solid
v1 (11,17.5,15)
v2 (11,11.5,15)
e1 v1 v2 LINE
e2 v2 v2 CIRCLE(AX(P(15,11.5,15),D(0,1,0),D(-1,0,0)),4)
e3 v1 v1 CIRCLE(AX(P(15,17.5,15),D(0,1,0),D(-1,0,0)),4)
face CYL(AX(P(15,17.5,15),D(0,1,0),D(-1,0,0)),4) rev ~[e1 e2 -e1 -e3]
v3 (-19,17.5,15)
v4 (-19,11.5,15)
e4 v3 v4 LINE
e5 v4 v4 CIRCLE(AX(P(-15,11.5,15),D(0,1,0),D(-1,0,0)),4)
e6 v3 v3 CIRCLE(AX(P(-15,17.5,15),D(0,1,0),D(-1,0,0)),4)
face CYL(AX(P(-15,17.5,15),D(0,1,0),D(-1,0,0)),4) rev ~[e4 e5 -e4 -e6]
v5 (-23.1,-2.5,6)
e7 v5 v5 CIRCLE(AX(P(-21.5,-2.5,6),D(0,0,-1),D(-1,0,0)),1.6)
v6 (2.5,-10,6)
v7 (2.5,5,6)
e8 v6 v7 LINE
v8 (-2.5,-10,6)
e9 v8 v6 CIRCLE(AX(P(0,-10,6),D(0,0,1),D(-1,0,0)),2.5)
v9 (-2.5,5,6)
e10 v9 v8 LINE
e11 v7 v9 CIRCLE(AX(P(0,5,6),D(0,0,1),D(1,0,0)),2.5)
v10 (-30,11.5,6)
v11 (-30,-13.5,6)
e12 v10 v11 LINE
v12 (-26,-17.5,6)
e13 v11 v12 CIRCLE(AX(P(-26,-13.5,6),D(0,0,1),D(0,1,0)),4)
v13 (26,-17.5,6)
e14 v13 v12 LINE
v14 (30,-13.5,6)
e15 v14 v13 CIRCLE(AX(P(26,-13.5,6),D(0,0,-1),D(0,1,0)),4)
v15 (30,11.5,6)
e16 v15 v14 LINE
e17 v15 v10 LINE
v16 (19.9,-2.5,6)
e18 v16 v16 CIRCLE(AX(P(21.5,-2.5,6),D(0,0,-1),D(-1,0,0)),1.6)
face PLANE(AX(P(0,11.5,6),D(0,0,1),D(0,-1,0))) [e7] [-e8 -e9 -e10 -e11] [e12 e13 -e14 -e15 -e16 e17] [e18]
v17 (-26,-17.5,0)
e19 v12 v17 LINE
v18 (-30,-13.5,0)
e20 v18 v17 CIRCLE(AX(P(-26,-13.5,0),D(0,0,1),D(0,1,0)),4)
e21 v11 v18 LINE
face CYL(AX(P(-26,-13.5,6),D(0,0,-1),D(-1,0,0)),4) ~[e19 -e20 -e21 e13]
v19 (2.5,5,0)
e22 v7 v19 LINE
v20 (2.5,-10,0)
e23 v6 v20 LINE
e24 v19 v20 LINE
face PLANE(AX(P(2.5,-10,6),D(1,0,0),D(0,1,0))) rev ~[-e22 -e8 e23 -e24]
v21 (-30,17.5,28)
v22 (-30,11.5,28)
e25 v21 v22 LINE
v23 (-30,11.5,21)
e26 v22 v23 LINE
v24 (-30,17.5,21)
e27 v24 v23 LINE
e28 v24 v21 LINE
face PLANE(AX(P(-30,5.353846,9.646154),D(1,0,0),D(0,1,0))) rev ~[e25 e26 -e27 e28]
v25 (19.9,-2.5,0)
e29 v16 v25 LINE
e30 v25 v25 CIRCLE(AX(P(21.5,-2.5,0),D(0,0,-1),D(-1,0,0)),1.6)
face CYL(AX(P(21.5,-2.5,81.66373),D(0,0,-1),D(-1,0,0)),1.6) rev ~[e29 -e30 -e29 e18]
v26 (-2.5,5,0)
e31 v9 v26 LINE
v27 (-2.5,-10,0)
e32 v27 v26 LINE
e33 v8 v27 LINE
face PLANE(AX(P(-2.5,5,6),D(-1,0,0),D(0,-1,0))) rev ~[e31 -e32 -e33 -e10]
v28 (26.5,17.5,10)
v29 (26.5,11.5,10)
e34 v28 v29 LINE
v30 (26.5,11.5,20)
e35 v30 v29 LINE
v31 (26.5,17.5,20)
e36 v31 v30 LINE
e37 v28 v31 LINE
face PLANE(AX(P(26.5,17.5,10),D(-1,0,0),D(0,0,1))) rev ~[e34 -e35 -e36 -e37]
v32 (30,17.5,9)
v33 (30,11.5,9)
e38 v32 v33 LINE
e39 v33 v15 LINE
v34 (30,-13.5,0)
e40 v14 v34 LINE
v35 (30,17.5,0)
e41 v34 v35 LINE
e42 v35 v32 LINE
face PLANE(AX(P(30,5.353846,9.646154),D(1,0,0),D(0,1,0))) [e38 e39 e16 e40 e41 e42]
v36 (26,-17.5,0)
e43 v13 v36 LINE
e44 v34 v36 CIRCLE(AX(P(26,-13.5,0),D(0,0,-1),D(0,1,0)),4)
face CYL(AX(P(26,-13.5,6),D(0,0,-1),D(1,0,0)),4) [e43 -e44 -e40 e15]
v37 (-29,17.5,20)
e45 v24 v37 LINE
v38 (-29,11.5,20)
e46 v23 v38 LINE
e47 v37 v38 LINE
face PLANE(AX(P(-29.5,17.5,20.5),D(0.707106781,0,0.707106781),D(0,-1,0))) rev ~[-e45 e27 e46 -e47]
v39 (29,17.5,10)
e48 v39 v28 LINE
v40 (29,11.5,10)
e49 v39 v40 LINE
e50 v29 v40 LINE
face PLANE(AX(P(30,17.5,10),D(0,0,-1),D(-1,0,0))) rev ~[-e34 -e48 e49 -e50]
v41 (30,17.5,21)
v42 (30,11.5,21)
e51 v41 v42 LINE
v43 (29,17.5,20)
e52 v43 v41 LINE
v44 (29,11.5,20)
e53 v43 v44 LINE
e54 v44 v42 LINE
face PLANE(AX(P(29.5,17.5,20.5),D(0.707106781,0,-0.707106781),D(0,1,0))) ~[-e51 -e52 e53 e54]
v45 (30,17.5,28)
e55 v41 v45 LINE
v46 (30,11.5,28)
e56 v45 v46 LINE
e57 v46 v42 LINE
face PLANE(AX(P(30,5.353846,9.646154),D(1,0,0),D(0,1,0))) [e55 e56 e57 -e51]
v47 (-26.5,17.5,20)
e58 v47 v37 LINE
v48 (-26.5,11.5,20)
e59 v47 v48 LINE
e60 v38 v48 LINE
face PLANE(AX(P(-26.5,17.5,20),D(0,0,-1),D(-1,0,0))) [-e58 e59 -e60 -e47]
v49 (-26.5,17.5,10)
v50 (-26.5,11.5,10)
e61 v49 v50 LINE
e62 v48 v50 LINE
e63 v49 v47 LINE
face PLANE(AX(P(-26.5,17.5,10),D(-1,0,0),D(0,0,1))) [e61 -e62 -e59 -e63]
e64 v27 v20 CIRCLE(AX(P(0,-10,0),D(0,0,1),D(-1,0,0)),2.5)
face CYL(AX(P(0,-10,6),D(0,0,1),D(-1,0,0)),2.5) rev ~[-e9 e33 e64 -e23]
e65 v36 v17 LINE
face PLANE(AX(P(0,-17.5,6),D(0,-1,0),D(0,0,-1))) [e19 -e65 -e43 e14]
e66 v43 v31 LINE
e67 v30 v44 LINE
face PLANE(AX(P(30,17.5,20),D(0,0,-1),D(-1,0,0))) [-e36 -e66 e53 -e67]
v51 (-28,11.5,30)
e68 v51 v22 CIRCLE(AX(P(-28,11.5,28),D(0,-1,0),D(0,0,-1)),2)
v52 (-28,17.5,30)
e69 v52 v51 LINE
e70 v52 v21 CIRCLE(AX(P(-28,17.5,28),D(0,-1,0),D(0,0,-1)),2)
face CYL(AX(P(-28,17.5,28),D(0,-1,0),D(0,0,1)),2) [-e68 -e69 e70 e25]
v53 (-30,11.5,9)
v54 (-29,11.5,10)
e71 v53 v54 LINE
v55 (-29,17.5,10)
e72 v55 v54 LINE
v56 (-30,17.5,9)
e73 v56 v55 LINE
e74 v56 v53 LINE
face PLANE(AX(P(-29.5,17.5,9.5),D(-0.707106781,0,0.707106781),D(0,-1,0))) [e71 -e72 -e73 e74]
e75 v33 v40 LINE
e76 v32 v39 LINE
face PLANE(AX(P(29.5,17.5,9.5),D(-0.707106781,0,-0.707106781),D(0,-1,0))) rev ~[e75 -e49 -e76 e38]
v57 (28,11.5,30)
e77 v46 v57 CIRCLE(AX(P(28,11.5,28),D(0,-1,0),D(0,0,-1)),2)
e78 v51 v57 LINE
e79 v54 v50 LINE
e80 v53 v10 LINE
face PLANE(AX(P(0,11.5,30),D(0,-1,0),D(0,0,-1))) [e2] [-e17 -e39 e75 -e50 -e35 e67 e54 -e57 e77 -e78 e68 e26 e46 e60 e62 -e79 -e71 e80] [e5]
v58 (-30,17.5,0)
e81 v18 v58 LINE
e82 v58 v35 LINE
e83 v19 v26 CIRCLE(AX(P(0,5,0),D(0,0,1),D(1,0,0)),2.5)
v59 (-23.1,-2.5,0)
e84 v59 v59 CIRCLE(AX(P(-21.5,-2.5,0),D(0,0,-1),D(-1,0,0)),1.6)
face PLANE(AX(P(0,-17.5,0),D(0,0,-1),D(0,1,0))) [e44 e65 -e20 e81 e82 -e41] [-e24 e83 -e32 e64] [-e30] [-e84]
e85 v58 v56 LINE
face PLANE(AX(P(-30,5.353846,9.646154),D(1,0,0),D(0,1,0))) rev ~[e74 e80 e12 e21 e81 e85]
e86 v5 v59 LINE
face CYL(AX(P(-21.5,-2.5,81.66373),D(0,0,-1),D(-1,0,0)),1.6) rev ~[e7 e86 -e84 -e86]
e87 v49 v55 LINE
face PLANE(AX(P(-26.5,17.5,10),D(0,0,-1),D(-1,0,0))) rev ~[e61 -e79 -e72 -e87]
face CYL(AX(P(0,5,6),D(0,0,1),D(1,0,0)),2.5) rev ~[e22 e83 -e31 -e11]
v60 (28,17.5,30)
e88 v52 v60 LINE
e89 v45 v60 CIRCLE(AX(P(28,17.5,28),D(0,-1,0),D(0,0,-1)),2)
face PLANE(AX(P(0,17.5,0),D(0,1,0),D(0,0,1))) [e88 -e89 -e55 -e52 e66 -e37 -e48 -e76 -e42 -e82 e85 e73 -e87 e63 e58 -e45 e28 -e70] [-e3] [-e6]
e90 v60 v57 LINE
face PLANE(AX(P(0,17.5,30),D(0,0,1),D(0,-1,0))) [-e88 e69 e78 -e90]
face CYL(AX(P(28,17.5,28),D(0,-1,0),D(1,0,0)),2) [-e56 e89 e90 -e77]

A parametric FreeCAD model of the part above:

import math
import FreeCAD as App
import Part
import Sketcher
Q = App.Units.Quantity


def edges_at(feature, points):
    """Names of the edges that pass closest to the given points."""
    edges = feature.Shape.Edges
    near = lambda p: min(range(len(edges)), key=lambda i: edges[i].distToShape(Part.Vertex(*p))[0])
    return sorted({f"Edge{near(p) + 1}" for p in points})

doc = App.newDocument("Part")
params = doc.addObject("Spreadsheet::Sheet", "Params")
for row, (alias, value) in enumerate([
    ("sketch1_width", "35 mm"),
    ("sketch1_width2", "6 mm"),
    ("sketch1_height", "30 mm"),
    ("pad1_length", "60 mm"),
    ("sketch2_diameter", "3.2 mm"),
    ("hole_diameter", "3.2 mm"),
    ("sketch3_diameter", "8 mm"),
    ("sketch3_height", "10 mm"),
    ("sketch3_width", "3.5 mm"),
    ("chamfer_size", "1 mm"),
    ("fillet_radius", "2 mm"),
    ("fillet2_radius", "4 mm"),
    ("sketch4_radius", "2.5 mm"),
    ("sketch4_height", "15 mm"),
], start=1):
    params.set(f"A{row}", alias)
    params.set(f"B{row}", "=" + value)
    params.setAlias(f"B{row}", alias)

body = doc.addObject("PartDesign::Body", "Body")

sketch1 = body.newObject("Sketcher::SketchObject", "Sketch")
sketch1.AttachmentSupport = (doc.getObject("YZ_Plane"), [""])
sketch1.MapMode = "FlatFace"
sketch1.addGeometry(Part.LineSegment(App.Vector(-18, 0, 0), App.Vector(18, 0, 0)), False)
sketch1.addGeometry(Part.LineSegment(App.Vector(18, 0, 0), App.Vector(18, 30, 0)), False)
sketch1.addGeometry(Part.LineSegment(App.Vector(18, 30, 0), App.Vector(12, 30, 0)), False)
sketch1.addGeometry(Part.LineSegment(App.Vector(12, 30, 0), App.Vector(12, 6, 0)), False)
sketch1.addGeometry(Part.LineSegment(App.Vector(12, 6, 0), App.Vector(-18, 6, 0)), False)
sketch1.addGeometry(Part.LineSegment(App.Vector(-18, 6, 0), App.Vector(-18, 0, 0)), False)
sketch1.addConstraint(Sketcher.Constraint("Coincident", 0, 2, 1, 1))
sketch1.addConstraint(Sketcher.Constraint("Coincident", 1, 2, 2, 1))
sketch1.addConstraint(Sketcher.Constraint("Coincident", 2, 2, 3, 1))
sketch1.addConstraint(Sketcher.Constraint("Coincident", 3, 2, 4, 1))
sketch1.addConstraint(Sketcher.Constraint("Coincident", 4, 2, 5, 1))
sketch1.addConstraint(Sketcher.Constraint("Coincident", 5, 2, 0, 1))
sketch1.addConstraint(Sketcher.Constraint("Horizontal", 0))
sketch1.addConstraint(Sketcher.Constraint("Vertical", 1))
sketch1.addConstraint(Sketcher.Constraint("Horizontal", 2))
sketch1.addConstraint(Sketcher.Constraint("Vertical", 3))
sketch1.addConstraint(Sketcher.Constraint("Horizontal", 4))
sketch1.addConstraint(Sketcher.Constraint("Vertical", 5))
sketch1.addConstraint(Sketcher.Constraint("Symmetric", 0, 2, 5, 2, -1, 1))
sketch1.addConstraint(Sketcher.Constraint("Equal", 2, 5))
sketch1.addConstraint(Sketcher.Constraint("DistanceX", 0, 1, 0, 2, Q("35 mm")))
sketch1.addConstraint(Sketcher.Constraint("DistanceX", 2, 2, 2, 1, Q("6 mm")))
sketch1.addConstraint(Sketcher.Constraint("DistanceY", 1, 1, 1, 2, Q("30 mm")))
sketch1.setExpression("Constraints[14]", "Params.sketch1_width")
sketch1.setExpression("Constraints[15]", "Params.sketch1_width2")
sketch1.setExpression("Constraints[16]", "Params.sketch1_height")
pad1 = body.newObject("PartDesign::Pad", "Pad")
pad1.Profile = sketch1
pad1.setExpression("Length", "Params.pad1_length")
pad1.Midplane = True

sketch2 = body.newObject("Sketcher::SketchObject", "Sketch001")
sketch2.AttachmentSupport = (doc.getObject("XY_Plane"), [""])
sketch2.MapMode = "FlatFace"
sketch2.AttachmentOffset = App.Placement(App.Vector(0, 0, 6), App.Rotation())
sketch2.addGeometry(Part.Circle(App.Vector(-21.5, -2.5, 0), App.Vector(0, 0, 1), 1.6), False)
sketch2.addGeometry(Part.Circle(App.Vector(21.5, -2.5, 0), App.Vector(0, 0, 1), 1.6), False)
sketch2.addConstraint(Sketcher.Constraint("Equal", 0, 1))
sketch2.addConstraint(Sketcher.Constraint("Symmetric", 0, 3, 1, 3, -2))
sketch2.addConstraint(Sketcher.Constraint("Diameter", 0, Q("3.2 mm")))
sketch2.addConstraint(Sketcher.Constraint("DistanceX", 0, 3, 1, 3, Q("43 mm")))
sketch2.addConstraint(Sketcher.Constraint("DistanceY", 0, 3, -1, 1, Q("2.5 mm")))
sketch2.setExpression("Constraints[2]", "Params.sketch2_diameter")
doc.recompute()
hole = body.newObject("PartDesign::Hole", "Hole")
hole.Profile = sketch2
hole.ThreadType = "None"
hole.setExpression("Diameter", "Params.hole_diameter")
hole.DepthType = "ThroughAll"

sketch3 = body.newObject("Sketcher::SketchObject", "Sketch002")
sketch3.AttachmentSupport = (doc.getObject("XZ_Plane"), [""])
sketch3.MapMode = "FlatFace"
sketch3.AttachmentOffset = App.Placement(App.Vector(0, 0, -17.5), App.Rotation())
sketch3.addGeometry(Part.Circle(App.Vector(15, 15, 0), App.Vector(0, 0, 1), 4), False)
sketch3.addGeometry(Part.Circle(App.Vector(-15, 15, 0), App.Vector(0, 0, 1), 4), False)
sketch3.addGeometry(Part.LineSegment(App.Vector(-26.5, 20, 0), App.Vector(-26.5, 10, 0)), False)
sketch3.addGeometry(Part.LineSegment(App.Vector(-26.5, 10, 0), App.Vector(-30, 10, 0)), False)
sketch3.addGeometry(Part.LineSegment(App.Vector(-30, 10, 0), App.Vector(-30, 20, 0)), False)
sketch3.addGeometry(Part.LineSegment(App.Vector(-30, 20, 0), App.Vector(-26.5, 20, 0)), False)
sketch3.addGeometry(Part.LineSegment(App.Vector(30, 20, 0), App.Vector(30, 10, 0)), False)
sketch3.addGeometry(Part.LineSegment(App.Vector(30, 10, 0), App.Vector(26.5, 10, 0)), False)
sketch3.addGeometry(Part.LineSegment(App.Vector(26.5, 10, 0), App.Vector(26.5, 20, 0)), False)
sketch3.addGeometry(Part.LineSegment(App.Vector(26.5, 20, 0), App.Vector(30, 20, 0)), False)
sketch3.addConstraint(Sketcher.Constraint("Coincident", 2, 2, 3, 1))
sketch3.addConstraint(Sketcher.Constraint("Coincident", 3, 2, 4, 1))
sketch3.addConstraint(Sketcher.Constraint("Coincident", 4, 2, 5, 1))
sketch3.addConstraint(Sketcher.Constraint("Coincident", 5, 2, 2, 1))
sketch3.addConstraint(Sketcher.Constraint("Coincident", 6, 2, 7, 1))
sketch3.addConstraint(Sketcher.Constraint("Coincident", 7, 2, 8, 1))
sketch3.addConstraint(Sketcher.Constraint("Coincident", 8, 2, 9, 1))
sketch3.addConstraint(Sketcher.Constraint("Coincident", 9, 2, 6, 1))
sketch3.addConstraint(Sketcher.Constraint("Vertical", 2))
sketch3.addConstraint(Sketcher.Constraint("Horizontal", 3))
sketch3.addConstraint(Sketcher.Constraint("Vertical", 4))
sketch3.addConstraint(Sketcher.Constraint("Horizontal", 5))
sketch3.addConstraint(Sketcher.Constraint("Vertical", 6))
sketch3.addConstraint(Sketcher.Constraint("Horizontal", 7))
sketch3.addConstraint(Sketcher.Constraint("Vertical", 8))
sketch3.addConstraint(Sketcher.Constraint("Horizontal", 9))
sketch3.addConstraint(Sketcher.Constraint("Equal", 0, 1))
sketch3.addConstraint(Sketcher.Constraint("Symmetric", 0, 3, 1, 3, -2))
sketch3.addConstraint(Sketcher.Constraint("Symmetric", 3, 2, 6, 2, -2))
sketch3.addConstraint(Sketcher.Constraint("Symmetric", 5, 2, 8, 2, -2))
sketch3.addConstraint(Sketcher.Constraint("Diameter", 0, Q("8 mm")))
sketch3.addConstraint(Sketcher.Constraint("DistanceY", 2, 2, 2, 1, Q("10 mm")))
sketch3.addConstraint(Sketcher.Constraint("DistanceX", 3, 2, 3, 1, Q("3.5 mm")))
sketch3.addConstraint(Sketcher.Constraint("DistanceX", -1, 1, 0, 3, Q("15 mm")))
sketch3.addConstraint(Sketcher.Constraint("DistanceY", -1, 1, 0, 3, Q("15 mm")))
sketch3.addConstraint(Sketcher.Constraint("DistanceY", -1, 1, 2, 2, Q("10 mm")))
sketch3.addConstraint(Sketcher.Constraint("DistanceX", 3, 2, -1, 1, Q("30 mm")))
sketch3.setExpression("Constraints[20]", "Params.sketch3_diameter")
sketch3.setExpression("Constraints[21]", "Params.sketch3_height")
sketch3.setExpression("Constraints[22]", "Params.sketch3_width")
pocket1 = body.newObject("PartDesign::Pocket", "Pocket")
pocket1.Profile = sketch3
pocket1.Type = "ThroughAll"
pocket1.Reversed = True
doc.recompute()

chamfer = body.newObject("PartDesign::Chamfer", "Chamfer")
chamfer.Base = (pocket1, edges_at(pocket1, [
    (-30, 14.5, 20),
    (-30, 14.5, 10),
    (30, 14.5, 20),
    (30, 14.5, 10),
]))
chamfer.setExpression("Size", "Params.chamfer_size")
doc.recompute()

fillet = body.newObject("PartDesign::Fillet", "Fillet")
fillet.Base = (chamfer, edges_at(chamfer, [(-30, 14.5, 30), (30, 14.5, 30)]))
fillet.setExpression("Radius", "Params.fillet_radius")
doc.recompute()

fillet2 = body.newObject("PartDesign::Fillet", "Fillet001")
fillet2.Base = (fillet, edges_at(fillet, [(-30, -17.5, 3), (30, -17.5, 3)]))
fillet2.setExpression("Radius", "Params.fillet2_radius")

sketch4 = body.newObject("Sketcher::SketchObject", "Sketch003")
sketch4.AttachmentSupport = (doc.getObject("XY_Plane"), [""])
sketch4.MapMode = "FlatFace"
sketch4.AttachmentOffset = App.Placement(App.Vector(0, 0, 6), App.Rotation())
sketch4.addGeometry(Part.ArcOfCircle(Part.Circle(App.Vector(0, 5, 0), App.Vector(0, 0, 1), 2.5), math.radians(0), math.radians(180)), False)
sketch4.addGeometry(Part.LineSegment(App.Vector(-2.5, 5, 0), App.Vector(-2.5, -10, 0)), False)
sketch4.addGeometry(Part.ArcOfCircle(Part.Circle(App.Vector(0, -10, 0), App.Vector(0, 0, 1), 2.5), math.radians(180), math.radians(360)), False)
sketch4.addGeometry(Part.LineSegment(App.Vector(2.5, -10, 0), App.Vector(2.5, 5, 0)), False)
sketch4.addConstraint(Sketcher.Constraint("Tangent", 0, 2, 1, 1))
sketch4.addConstraint(Sketcher.Constraint("Tangent", 1, 2, 2, 1))
sketch4.addConstraint(Sketcher.Constraint("Tangent", 2, 2, 3, 1))
sketch4.addConstraint(Sketcher.Constraint("Tangent", 3, 2, 0, 1))
sketch4.addConstraint(Sketcher.Constraint("Vertical", 1))
sketch4.addConstraint(Sketcher.Constraint("Vertical", 3))
sketch4.addConstraint(Sketcher.Constraint("PointOnObject", 0, 3, -2))
sketch4.addConstraint(Sketcher.Constraint("Radius", 0, Q("2.5 mm")))
sketch4.addConstraint(Sketcher.Constraint("DistanceY", 1, 2, 1, 1, Q("15 mm")))
sketch4.addConstraint(Sketcher.Constraint("DistanceY", -1, 1, 0, 3, Q("5 mm")))
sketch4.setExpression("Constraints[7]", "Params.sketch4_radius")
sketch4.setExpression("Constraints[8]", "Params.sketch4_height")
pocket2 = body.newObject("PartDesign::Pocket", "Pocket001")
pocket2.Profile = sketch4
pocket2.Type = "ThroughAll"

doc.recompute()
